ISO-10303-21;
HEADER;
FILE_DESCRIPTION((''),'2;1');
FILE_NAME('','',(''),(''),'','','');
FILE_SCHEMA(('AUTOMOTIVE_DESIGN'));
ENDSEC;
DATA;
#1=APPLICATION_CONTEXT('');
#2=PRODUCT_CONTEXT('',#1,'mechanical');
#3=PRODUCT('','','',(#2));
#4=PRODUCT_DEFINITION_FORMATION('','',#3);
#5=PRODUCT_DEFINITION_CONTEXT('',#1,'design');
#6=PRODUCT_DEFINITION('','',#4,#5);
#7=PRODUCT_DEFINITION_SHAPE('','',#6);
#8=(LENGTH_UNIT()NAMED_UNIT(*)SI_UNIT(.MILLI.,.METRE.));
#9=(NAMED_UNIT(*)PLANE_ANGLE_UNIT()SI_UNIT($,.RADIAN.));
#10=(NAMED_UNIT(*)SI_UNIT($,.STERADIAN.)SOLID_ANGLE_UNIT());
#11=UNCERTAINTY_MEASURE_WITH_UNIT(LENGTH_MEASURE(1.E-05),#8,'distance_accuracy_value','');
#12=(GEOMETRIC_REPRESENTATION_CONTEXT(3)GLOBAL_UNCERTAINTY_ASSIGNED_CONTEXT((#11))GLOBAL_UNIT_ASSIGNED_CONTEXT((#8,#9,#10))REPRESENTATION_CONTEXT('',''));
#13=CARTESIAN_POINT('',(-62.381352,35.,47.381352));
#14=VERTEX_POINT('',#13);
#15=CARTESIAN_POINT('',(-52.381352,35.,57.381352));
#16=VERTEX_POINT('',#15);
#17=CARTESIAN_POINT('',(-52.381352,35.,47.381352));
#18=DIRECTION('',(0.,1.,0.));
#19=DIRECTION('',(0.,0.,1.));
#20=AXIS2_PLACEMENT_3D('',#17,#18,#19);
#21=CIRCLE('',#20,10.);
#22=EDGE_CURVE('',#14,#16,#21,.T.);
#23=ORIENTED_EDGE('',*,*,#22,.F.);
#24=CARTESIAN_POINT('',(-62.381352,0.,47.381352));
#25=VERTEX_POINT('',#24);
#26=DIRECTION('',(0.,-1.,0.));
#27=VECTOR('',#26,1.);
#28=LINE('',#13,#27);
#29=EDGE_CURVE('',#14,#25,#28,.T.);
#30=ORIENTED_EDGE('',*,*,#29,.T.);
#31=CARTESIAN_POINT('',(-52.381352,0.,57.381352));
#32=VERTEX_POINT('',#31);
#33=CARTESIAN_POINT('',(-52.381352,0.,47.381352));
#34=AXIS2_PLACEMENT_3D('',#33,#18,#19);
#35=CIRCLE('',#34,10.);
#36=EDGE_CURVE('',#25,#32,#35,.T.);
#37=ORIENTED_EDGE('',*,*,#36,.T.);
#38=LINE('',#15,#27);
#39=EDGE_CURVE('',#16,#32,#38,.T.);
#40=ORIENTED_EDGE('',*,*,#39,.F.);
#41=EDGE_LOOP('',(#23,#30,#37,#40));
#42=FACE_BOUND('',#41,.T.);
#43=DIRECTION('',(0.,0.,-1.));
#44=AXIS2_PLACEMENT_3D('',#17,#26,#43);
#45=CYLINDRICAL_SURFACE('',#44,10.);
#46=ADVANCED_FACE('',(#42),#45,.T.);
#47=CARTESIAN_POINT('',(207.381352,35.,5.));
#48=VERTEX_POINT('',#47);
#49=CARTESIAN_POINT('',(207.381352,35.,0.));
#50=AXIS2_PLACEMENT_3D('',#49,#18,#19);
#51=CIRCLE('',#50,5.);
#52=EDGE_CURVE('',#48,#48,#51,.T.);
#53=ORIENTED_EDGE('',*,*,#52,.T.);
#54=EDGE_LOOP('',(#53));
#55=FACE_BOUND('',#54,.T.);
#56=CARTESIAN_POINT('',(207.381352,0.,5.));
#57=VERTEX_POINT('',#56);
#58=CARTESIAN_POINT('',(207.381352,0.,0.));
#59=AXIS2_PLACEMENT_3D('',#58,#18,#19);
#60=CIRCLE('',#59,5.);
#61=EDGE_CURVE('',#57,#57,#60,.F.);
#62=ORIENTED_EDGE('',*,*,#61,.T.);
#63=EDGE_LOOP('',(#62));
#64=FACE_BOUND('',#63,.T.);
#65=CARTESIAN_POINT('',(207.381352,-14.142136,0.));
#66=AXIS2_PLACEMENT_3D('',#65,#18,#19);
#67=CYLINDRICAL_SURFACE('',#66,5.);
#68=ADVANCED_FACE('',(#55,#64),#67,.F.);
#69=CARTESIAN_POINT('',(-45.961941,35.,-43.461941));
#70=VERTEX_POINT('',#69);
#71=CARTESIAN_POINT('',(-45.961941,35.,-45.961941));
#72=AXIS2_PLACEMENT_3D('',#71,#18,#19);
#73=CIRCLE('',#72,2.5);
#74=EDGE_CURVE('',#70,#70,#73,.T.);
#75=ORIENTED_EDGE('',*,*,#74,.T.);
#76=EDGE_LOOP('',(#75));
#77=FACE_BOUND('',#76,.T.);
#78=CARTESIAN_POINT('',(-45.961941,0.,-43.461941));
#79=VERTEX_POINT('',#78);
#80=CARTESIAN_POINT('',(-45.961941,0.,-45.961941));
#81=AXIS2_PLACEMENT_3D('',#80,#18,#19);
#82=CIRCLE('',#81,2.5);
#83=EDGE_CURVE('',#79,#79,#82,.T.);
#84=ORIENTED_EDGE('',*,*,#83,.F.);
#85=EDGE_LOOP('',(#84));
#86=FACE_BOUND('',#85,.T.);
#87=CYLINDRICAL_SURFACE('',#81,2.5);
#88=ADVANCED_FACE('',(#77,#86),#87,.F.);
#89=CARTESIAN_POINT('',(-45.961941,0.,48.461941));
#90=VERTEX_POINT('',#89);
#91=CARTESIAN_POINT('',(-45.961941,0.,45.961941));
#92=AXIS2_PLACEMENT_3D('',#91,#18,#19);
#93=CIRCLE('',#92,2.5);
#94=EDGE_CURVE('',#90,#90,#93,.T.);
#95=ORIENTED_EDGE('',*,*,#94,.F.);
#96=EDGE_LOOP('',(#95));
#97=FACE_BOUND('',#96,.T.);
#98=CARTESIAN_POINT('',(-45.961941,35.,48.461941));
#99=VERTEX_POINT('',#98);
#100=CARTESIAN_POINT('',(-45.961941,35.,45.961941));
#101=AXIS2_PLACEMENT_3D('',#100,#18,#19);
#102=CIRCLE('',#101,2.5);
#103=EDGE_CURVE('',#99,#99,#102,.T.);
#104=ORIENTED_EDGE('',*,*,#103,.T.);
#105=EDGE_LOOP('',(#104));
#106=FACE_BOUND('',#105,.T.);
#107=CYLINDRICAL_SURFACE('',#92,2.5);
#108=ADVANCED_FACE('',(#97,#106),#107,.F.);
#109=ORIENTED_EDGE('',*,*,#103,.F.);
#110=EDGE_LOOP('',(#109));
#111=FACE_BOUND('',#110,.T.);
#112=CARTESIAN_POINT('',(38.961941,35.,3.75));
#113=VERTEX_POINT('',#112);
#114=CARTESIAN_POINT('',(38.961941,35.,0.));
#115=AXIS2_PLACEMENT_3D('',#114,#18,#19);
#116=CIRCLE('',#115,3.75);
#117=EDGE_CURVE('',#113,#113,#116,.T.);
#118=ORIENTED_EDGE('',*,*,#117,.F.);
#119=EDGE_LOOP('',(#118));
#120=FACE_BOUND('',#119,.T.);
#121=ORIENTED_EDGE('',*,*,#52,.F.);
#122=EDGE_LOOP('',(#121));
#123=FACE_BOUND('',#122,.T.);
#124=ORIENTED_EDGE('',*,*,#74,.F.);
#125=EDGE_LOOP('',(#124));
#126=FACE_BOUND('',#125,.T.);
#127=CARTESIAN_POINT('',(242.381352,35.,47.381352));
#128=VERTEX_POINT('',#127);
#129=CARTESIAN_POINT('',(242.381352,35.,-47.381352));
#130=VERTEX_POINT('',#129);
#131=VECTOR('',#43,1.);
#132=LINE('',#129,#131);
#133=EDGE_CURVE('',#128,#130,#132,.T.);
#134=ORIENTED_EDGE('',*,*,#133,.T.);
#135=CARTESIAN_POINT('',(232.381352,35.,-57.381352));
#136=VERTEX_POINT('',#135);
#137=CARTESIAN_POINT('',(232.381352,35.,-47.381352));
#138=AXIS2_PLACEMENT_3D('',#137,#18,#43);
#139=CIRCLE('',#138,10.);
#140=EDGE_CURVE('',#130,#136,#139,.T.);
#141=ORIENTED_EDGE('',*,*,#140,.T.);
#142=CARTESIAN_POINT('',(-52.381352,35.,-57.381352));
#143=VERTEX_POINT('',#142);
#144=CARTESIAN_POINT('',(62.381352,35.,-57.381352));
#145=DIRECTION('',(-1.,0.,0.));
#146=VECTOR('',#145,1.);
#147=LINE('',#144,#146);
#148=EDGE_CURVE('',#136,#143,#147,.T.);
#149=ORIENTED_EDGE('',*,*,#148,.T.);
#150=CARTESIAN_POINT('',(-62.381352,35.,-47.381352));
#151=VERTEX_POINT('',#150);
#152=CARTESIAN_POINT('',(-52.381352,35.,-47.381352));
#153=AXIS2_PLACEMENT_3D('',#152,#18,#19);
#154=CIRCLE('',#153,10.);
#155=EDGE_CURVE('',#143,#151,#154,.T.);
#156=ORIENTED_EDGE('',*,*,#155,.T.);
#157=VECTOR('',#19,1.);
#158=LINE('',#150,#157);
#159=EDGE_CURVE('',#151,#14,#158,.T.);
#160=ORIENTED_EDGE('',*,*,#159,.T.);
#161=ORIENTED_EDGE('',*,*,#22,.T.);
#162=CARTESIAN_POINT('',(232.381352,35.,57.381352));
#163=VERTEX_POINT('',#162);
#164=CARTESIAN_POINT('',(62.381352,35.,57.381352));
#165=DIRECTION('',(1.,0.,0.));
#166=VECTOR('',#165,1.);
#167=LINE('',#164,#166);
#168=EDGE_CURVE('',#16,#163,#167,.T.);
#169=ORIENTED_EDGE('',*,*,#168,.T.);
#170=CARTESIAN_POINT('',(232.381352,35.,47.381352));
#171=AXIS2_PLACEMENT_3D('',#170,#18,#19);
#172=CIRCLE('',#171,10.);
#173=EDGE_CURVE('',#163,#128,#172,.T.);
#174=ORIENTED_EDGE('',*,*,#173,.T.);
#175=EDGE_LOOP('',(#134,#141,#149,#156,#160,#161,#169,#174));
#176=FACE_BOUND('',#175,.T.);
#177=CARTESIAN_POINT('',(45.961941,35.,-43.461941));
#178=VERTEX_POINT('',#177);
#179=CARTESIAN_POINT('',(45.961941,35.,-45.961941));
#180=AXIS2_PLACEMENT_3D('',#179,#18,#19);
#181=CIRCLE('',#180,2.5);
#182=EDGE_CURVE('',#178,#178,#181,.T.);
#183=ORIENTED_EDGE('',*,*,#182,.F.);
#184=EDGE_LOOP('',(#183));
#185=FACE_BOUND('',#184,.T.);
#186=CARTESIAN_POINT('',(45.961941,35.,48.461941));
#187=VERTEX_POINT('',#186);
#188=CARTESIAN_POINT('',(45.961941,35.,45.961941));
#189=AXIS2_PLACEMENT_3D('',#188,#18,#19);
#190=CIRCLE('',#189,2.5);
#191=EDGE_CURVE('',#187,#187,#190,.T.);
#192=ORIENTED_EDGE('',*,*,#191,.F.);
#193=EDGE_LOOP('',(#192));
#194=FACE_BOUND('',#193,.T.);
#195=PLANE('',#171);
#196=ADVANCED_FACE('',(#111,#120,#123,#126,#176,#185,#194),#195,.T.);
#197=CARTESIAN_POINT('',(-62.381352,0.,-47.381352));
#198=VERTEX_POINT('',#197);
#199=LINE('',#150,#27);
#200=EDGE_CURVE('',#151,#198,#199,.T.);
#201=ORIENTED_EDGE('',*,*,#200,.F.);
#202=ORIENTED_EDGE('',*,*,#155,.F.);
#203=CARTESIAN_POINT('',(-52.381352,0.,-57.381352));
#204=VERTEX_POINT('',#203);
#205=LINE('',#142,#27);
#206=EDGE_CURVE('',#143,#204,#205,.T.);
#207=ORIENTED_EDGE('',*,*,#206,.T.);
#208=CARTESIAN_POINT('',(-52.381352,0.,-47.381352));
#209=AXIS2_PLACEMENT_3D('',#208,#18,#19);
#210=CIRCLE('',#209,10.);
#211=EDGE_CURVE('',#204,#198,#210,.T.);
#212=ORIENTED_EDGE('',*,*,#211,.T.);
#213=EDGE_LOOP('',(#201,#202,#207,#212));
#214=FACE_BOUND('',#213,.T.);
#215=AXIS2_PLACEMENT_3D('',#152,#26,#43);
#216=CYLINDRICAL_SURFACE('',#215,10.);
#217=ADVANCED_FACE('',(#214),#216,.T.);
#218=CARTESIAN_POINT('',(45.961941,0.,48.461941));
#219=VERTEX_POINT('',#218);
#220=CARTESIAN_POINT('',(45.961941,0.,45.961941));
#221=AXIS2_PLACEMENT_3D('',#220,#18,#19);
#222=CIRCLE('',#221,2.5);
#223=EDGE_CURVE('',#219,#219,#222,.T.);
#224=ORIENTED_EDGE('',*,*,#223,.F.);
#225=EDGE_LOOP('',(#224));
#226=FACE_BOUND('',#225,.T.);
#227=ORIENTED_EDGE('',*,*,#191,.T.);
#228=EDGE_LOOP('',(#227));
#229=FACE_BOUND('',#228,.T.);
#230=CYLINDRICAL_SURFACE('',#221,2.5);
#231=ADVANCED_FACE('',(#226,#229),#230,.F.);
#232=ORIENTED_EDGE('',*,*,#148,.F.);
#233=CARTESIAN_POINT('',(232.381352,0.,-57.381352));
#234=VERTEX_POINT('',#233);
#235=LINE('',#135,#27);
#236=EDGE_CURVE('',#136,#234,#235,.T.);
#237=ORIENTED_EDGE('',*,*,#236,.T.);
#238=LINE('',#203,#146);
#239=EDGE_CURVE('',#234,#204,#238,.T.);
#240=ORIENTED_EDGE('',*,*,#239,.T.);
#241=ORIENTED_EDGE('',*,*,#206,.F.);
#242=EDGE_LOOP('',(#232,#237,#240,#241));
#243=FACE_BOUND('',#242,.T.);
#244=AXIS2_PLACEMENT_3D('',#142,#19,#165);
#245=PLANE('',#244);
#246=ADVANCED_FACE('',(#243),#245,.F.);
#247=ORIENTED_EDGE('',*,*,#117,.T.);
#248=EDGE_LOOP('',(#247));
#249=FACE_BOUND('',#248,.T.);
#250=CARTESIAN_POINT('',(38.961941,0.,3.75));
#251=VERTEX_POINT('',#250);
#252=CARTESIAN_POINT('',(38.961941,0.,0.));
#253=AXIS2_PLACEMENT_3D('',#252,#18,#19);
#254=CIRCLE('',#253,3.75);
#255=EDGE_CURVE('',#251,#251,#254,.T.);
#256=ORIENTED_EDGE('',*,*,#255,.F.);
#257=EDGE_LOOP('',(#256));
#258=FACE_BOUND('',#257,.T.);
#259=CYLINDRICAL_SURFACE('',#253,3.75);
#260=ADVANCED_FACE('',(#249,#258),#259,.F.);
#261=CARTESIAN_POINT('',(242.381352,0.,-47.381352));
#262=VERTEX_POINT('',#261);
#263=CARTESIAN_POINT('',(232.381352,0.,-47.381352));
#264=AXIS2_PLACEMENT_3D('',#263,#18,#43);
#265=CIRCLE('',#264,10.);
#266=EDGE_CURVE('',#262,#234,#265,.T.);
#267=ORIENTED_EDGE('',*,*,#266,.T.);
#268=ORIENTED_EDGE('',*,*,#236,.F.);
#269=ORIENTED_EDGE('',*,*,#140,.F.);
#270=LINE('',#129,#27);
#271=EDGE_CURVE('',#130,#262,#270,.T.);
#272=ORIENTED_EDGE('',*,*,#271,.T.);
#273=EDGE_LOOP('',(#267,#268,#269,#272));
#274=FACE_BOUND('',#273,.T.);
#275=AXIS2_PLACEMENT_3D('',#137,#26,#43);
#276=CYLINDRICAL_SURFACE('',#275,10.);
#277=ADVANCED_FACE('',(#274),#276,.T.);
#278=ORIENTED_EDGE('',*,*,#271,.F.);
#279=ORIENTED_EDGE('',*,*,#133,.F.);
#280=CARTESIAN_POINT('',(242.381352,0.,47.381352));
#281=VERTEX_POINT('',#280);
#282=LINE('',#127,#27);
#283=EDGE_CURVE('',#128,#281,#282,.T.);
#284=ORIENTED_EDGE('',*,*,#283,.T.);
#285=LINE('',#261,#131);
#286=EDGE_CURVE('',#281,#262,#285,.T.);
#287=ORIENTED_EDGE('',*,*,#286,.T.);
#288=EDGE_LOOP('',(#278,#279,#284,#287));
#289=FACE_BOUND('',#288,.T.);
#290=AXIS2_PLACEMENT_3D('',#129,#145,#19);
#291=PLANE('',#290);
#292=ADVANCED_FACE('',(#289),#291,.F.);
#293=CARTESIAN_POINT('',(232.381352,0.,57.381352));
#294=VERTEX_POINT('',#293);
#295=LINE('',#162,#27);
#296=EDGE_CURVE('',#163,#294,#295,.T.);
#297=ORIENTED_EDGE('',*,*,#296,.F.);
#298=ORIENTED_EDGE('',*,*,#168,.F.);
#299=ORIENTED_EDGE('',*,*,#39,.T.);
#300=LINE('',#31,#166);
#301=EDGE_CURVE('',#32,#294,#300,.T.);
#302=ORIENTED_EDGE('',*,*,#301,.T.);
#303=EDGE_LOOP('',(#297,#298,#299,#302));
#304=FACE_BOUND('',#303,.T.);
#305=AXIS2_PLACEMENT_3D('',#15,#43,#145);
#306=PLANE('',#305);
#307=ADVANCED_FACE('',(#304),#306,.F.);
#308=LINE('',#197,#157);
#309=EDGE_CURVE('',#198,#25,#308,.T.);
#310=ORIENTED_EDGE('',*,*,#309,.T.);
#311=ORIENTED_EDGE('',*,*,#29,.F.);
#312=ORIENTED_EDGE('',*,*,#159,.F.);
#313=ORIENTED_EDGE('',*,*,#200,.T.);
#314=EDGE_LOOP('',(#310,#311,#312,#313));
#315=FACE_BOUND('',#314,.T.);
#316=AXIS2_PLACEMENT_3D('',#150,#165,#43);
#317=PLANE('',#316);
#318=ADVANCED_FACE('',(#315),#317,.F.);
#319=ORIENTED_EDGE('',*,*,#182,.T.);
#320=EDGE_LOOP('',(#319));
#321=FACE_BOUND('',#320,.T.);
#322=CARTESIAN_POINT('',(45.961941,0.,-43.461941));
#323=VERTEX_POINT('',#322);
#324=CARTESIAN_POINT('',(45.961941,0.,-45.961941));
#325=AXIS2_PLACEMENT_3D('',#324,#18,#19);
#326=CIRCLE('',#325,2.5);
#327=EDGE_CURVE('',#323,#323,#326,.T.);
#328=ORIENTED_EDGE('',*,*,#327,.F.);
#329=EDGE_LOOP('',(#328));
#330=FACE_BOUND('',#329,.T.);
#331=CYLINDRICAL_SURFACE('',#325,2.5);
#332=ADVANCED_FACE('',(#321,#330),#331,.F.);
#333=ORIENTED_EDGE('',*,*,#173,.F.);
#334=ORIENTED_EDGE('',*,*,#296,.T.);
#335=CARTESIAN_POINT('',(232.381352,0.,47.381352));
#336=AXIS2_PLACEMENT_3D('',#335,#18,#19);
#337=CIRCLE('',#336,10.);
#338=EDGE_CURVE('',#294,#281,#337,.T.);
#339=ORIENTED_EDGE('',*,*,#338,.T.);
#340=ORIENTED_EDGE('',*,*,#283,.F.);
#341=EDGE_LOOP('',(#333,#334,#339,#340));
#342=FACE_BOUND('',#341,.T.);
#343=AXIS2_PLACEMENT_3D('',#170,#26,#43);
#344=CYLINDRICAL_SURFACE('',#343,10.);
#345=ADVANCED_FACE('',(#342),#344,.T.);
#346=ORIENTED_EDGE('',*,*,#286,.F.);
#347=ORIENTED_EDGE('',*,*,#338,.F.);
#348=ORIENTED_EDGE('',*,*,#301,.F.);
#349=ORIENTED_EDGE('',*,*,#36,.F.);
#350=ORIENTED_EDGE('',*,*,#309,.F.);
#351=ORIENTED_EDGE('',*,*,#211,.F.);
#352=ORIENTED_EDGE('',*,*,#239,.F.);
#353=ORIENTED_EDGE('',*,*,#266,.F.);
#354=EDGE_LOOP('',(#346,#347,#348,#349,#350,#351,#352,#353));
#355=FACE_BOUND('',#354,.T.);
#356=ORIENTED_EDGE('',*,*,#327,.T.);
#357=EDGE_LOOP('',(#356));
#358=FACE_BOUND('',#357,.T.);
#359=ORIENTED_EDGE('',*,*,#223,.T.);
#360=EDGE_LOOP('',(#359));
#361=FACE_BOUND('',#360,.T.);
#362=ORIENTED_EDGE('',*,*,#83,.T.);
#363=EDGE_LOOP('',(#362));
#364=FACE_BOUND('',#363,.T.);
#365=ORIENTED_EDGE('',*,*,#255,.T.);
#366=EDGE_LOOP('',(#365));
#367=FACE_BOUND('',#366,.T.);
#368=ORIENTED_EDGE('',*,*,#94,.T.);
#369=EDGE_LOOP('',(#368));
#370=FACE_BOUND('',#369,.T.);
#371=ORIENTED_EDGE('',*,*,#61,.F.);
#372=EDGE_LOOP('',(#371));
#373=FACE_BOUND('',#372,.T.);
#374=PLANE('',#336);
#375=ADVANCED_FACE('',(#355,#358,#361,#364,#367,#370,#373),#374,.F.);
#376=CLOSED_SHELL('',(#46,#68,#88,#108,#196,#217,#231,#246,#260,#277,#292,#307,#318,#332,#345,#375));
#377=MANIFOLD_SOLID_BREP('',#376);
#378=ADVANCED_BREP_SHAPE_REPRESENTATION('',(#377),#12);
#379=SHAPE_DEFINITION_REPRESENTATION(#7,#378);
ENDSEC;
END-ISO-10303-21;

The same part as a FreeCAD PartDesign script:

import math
import FreeCAD as App
import Part
import Sketcher

doc = App.newDocument("Part")
body = doc.addObject("PartDesign::Body", "Body")

# Sketch on XZ plane
sketch1 = doc.addObject("Sketcher::SketchObject", "Sketch")
body.addObject(sketch1)
sketch1.AttachmentSupport = (doc.XZ_Plane, [""])
sketch1.MapMode = "FlatFace"
sketch1.addGeometry([
    Part.LineSegment(App.Vector(232.381352, -57.381352, 0), App.Vector(-52.381352, -57.381352, 0)),  # 0
    Part.ArcOfCircle(Part.Circle(App.Vector(-52.381352, -47.381352, 0), App.Vector(0, 0, 1), 10), math.radians(180), math.radians(270)),  # 1
    Part.LineSegment(App.Vector(-62.381352, -47.381352, 0), App.Vector(-62.381352, 47.381352, 0)),  # 2
    Part.ArcOfCircle(Part.Circle(App.Vector(-52.381352, 47.381352, 0), App.Vector(0, 0, 1), 10), math.radians(90), math.radians(180)),  # 3
    Part.LineSegment(App.Vector(-52.381352, 57.381352, 0), App.Vector(232.381352, 57.381352, 0)),  # 4
    Part.ArcOfCircle(Part.Circle(App.Vector(232.381352, 47.381352, 0), App.Vector(0, 0, 1), 10), math.radians(0), math.radians(90)),  # 5
    Part.LineSegment(App.Vector(242.381352, 47.381352, 0), App.Vector(242.381352, -47.381352, 0)),  # 6
    Part.ArcOfCircle(Part.Circle(App.Vector(232.381352, -47.381352, 0), App.Vector(0, 0, 1), 10), math.radians(-90), math.radians(0)),  # 7
], False)
sketch1.addConstraint([
    Sketcher.Constraint("Tangent", 0, 2, 1, 2),
    Sketcher.Constraint("Tangent", 1, 1, 2, 1),
    Sketcher.Constraint("Tangent", 2, 2, 3, 2),
    Sketcher.Constraint("Tangent", 3, 1, 4, 1),
    Sketcher.Constraint("Tangent", 4, 2, 5, 2),
    Sketcher.Constraint("Tangent", 5, 1, 6, 1),
    Sketcher.Constraint("Tangent", 6, 2, 7, 2),
    Sketcher.Constraint("Tangent", 7, 1, 0, 1),
    Sketcher.Constraint("Horizontal", 0),
    Sketcher.Constraint("Vertical", 2),
    Sketcher.Constraint("Horizontal", 4),
    Sketcher.Constraint("Vertical", 6),
    Sketcher.Constraint("Equal", 1, 3),
    Sketcher.Constraint("Equal", 3, 5),
    Sketcher.Constraint("Equal", 5, 7),
    Sketcher.Constraint("Radius", 1, 10.0),
    Sketcher.Constraint("DistanceX", 0, 2, 0, 1, 284.762703),
    Sketcher.Constraint("DistanceY", 2, 1, 2, 2, 94.762703),
    Sketcher.Constraint("DistanceX", 1, 3, -1, 1, 52.381352),
    Sketcher.Constraint("DistanceY", 1, 3, -1, 1, 47.381352),
])
pad1 = doc.addObject("PartDesign::Pad", "Pad")
body.addObject(pad1)
pad1.Profile = sketch1
pad1.Length = 35
pad1.Reversed = True

# Sketch on XZ plane
sketch2 = doc.addObject("Sketcher::SketchObject", "Sketch001")
body.addObject(sketch2)
sketch2.AttachmentSupport = (doc.XZ_Plane, [""])
sketch2.MapMode = "FlatFace"
sketch2.AttachmentOffset = App.Placement(App.Vector(0, 0, -35), App.Rotation())
sketch2.addGeometry(Part.Circle(App.Vector(207.381352, 0, 0), App.Vector(0, 0, 1), 5), False)
sketch2.addConstraint([
    Sketcher.Constraint("PointOnObject", 0, 3, -1),
    Sketcher.Constraint("Diameter", 0, 10.0),
    Sketcher.Constraint("DistanceX", -1, 1, 0, 3, 207.381352),
])
pocket1 = doc.addObject("PartDesign::Pocket", "Pocket")
body.addObject(pocket1)
pocket1.Profile = sketch2
pocket1.Length = 35
pocket1.Reversed = True

# Sketch on XZ plane
sketch3 = doc.addObject("Sketcher::SketchObject", "Sketch002")
body.addObject(sketch3)
sketch3.AttachmentSupport = (doc.XZ_Plane, [""])
sketch3.MapMode = "FlatFace"
sketch3.AttachmentOffset = App.Placement(App.Vector(0, 0, -35), App.Rotation())
sketch3.addGeometry([
    Part.Circle(App.Vector(45.961941, -45.961941, 0), App.Vector(0, 0, 1), 2.5),  # 0
    Part.Circle(App.Vector(45.961941, 45.961941, 0), App.Vector(0, 0, 1), 2.5),  # 1
    Part.Circle(App.Vector(-45.961941, 45.961941, 0), App.Vector(0, 0, 1), 2.5),  # 2
    Part.Circle(App.Vector(-45.961941, -45.961941, 0), App.Vector(0, 0, 1), 2.5),  # 3
    Part.Circle(App.Vector(38.961941, 0, 0), App.Vector(0, 0, 1), 3.75),  # 4
], False)
sketch3.addConstraint([
    Sketcher.Constraint("Equal", 0, 1),
    Sketcher.Constraint("Equal", 1, 2),
    Sketcher.Constraint("Equal", 2, 3),
    Sketcher.Constraint("Symmetric", 0, 3, 2, 3, -1, 1),
    Sketcher.Constraint("Symmetric", 1, 3, 3, 3, -1, 1),
    Sketcher.Constraint("Symmetric", 1, 3, 2, 3, -2),
    Sketcher.Constraint("PointOnObject", 4, 3, -1),
    Sketcher.Constraint("Diameter", 0, 5.0),
    Sketcher.Constraint("Diameter", 4, 7.5),
    Sketcher.Constraint("DistanceX", 4, 3, 0, 3, 7.0),
    Sketcher.Constraint("DistanceX", -1, 1, 0, 3, 45.961941),
    Sketcher.Constraint("DistanceY", 0, 3, -1, 1, 45.961941),
])
pocket2 = doc.addObject("PartDesign::Pocket", "Pocket001")
body.addObject(pocket2)
pocket2.Profile = sketch3
pocket2.Type = "ThroughAll"
pocket2.Reversed = True

doc.recompute()
